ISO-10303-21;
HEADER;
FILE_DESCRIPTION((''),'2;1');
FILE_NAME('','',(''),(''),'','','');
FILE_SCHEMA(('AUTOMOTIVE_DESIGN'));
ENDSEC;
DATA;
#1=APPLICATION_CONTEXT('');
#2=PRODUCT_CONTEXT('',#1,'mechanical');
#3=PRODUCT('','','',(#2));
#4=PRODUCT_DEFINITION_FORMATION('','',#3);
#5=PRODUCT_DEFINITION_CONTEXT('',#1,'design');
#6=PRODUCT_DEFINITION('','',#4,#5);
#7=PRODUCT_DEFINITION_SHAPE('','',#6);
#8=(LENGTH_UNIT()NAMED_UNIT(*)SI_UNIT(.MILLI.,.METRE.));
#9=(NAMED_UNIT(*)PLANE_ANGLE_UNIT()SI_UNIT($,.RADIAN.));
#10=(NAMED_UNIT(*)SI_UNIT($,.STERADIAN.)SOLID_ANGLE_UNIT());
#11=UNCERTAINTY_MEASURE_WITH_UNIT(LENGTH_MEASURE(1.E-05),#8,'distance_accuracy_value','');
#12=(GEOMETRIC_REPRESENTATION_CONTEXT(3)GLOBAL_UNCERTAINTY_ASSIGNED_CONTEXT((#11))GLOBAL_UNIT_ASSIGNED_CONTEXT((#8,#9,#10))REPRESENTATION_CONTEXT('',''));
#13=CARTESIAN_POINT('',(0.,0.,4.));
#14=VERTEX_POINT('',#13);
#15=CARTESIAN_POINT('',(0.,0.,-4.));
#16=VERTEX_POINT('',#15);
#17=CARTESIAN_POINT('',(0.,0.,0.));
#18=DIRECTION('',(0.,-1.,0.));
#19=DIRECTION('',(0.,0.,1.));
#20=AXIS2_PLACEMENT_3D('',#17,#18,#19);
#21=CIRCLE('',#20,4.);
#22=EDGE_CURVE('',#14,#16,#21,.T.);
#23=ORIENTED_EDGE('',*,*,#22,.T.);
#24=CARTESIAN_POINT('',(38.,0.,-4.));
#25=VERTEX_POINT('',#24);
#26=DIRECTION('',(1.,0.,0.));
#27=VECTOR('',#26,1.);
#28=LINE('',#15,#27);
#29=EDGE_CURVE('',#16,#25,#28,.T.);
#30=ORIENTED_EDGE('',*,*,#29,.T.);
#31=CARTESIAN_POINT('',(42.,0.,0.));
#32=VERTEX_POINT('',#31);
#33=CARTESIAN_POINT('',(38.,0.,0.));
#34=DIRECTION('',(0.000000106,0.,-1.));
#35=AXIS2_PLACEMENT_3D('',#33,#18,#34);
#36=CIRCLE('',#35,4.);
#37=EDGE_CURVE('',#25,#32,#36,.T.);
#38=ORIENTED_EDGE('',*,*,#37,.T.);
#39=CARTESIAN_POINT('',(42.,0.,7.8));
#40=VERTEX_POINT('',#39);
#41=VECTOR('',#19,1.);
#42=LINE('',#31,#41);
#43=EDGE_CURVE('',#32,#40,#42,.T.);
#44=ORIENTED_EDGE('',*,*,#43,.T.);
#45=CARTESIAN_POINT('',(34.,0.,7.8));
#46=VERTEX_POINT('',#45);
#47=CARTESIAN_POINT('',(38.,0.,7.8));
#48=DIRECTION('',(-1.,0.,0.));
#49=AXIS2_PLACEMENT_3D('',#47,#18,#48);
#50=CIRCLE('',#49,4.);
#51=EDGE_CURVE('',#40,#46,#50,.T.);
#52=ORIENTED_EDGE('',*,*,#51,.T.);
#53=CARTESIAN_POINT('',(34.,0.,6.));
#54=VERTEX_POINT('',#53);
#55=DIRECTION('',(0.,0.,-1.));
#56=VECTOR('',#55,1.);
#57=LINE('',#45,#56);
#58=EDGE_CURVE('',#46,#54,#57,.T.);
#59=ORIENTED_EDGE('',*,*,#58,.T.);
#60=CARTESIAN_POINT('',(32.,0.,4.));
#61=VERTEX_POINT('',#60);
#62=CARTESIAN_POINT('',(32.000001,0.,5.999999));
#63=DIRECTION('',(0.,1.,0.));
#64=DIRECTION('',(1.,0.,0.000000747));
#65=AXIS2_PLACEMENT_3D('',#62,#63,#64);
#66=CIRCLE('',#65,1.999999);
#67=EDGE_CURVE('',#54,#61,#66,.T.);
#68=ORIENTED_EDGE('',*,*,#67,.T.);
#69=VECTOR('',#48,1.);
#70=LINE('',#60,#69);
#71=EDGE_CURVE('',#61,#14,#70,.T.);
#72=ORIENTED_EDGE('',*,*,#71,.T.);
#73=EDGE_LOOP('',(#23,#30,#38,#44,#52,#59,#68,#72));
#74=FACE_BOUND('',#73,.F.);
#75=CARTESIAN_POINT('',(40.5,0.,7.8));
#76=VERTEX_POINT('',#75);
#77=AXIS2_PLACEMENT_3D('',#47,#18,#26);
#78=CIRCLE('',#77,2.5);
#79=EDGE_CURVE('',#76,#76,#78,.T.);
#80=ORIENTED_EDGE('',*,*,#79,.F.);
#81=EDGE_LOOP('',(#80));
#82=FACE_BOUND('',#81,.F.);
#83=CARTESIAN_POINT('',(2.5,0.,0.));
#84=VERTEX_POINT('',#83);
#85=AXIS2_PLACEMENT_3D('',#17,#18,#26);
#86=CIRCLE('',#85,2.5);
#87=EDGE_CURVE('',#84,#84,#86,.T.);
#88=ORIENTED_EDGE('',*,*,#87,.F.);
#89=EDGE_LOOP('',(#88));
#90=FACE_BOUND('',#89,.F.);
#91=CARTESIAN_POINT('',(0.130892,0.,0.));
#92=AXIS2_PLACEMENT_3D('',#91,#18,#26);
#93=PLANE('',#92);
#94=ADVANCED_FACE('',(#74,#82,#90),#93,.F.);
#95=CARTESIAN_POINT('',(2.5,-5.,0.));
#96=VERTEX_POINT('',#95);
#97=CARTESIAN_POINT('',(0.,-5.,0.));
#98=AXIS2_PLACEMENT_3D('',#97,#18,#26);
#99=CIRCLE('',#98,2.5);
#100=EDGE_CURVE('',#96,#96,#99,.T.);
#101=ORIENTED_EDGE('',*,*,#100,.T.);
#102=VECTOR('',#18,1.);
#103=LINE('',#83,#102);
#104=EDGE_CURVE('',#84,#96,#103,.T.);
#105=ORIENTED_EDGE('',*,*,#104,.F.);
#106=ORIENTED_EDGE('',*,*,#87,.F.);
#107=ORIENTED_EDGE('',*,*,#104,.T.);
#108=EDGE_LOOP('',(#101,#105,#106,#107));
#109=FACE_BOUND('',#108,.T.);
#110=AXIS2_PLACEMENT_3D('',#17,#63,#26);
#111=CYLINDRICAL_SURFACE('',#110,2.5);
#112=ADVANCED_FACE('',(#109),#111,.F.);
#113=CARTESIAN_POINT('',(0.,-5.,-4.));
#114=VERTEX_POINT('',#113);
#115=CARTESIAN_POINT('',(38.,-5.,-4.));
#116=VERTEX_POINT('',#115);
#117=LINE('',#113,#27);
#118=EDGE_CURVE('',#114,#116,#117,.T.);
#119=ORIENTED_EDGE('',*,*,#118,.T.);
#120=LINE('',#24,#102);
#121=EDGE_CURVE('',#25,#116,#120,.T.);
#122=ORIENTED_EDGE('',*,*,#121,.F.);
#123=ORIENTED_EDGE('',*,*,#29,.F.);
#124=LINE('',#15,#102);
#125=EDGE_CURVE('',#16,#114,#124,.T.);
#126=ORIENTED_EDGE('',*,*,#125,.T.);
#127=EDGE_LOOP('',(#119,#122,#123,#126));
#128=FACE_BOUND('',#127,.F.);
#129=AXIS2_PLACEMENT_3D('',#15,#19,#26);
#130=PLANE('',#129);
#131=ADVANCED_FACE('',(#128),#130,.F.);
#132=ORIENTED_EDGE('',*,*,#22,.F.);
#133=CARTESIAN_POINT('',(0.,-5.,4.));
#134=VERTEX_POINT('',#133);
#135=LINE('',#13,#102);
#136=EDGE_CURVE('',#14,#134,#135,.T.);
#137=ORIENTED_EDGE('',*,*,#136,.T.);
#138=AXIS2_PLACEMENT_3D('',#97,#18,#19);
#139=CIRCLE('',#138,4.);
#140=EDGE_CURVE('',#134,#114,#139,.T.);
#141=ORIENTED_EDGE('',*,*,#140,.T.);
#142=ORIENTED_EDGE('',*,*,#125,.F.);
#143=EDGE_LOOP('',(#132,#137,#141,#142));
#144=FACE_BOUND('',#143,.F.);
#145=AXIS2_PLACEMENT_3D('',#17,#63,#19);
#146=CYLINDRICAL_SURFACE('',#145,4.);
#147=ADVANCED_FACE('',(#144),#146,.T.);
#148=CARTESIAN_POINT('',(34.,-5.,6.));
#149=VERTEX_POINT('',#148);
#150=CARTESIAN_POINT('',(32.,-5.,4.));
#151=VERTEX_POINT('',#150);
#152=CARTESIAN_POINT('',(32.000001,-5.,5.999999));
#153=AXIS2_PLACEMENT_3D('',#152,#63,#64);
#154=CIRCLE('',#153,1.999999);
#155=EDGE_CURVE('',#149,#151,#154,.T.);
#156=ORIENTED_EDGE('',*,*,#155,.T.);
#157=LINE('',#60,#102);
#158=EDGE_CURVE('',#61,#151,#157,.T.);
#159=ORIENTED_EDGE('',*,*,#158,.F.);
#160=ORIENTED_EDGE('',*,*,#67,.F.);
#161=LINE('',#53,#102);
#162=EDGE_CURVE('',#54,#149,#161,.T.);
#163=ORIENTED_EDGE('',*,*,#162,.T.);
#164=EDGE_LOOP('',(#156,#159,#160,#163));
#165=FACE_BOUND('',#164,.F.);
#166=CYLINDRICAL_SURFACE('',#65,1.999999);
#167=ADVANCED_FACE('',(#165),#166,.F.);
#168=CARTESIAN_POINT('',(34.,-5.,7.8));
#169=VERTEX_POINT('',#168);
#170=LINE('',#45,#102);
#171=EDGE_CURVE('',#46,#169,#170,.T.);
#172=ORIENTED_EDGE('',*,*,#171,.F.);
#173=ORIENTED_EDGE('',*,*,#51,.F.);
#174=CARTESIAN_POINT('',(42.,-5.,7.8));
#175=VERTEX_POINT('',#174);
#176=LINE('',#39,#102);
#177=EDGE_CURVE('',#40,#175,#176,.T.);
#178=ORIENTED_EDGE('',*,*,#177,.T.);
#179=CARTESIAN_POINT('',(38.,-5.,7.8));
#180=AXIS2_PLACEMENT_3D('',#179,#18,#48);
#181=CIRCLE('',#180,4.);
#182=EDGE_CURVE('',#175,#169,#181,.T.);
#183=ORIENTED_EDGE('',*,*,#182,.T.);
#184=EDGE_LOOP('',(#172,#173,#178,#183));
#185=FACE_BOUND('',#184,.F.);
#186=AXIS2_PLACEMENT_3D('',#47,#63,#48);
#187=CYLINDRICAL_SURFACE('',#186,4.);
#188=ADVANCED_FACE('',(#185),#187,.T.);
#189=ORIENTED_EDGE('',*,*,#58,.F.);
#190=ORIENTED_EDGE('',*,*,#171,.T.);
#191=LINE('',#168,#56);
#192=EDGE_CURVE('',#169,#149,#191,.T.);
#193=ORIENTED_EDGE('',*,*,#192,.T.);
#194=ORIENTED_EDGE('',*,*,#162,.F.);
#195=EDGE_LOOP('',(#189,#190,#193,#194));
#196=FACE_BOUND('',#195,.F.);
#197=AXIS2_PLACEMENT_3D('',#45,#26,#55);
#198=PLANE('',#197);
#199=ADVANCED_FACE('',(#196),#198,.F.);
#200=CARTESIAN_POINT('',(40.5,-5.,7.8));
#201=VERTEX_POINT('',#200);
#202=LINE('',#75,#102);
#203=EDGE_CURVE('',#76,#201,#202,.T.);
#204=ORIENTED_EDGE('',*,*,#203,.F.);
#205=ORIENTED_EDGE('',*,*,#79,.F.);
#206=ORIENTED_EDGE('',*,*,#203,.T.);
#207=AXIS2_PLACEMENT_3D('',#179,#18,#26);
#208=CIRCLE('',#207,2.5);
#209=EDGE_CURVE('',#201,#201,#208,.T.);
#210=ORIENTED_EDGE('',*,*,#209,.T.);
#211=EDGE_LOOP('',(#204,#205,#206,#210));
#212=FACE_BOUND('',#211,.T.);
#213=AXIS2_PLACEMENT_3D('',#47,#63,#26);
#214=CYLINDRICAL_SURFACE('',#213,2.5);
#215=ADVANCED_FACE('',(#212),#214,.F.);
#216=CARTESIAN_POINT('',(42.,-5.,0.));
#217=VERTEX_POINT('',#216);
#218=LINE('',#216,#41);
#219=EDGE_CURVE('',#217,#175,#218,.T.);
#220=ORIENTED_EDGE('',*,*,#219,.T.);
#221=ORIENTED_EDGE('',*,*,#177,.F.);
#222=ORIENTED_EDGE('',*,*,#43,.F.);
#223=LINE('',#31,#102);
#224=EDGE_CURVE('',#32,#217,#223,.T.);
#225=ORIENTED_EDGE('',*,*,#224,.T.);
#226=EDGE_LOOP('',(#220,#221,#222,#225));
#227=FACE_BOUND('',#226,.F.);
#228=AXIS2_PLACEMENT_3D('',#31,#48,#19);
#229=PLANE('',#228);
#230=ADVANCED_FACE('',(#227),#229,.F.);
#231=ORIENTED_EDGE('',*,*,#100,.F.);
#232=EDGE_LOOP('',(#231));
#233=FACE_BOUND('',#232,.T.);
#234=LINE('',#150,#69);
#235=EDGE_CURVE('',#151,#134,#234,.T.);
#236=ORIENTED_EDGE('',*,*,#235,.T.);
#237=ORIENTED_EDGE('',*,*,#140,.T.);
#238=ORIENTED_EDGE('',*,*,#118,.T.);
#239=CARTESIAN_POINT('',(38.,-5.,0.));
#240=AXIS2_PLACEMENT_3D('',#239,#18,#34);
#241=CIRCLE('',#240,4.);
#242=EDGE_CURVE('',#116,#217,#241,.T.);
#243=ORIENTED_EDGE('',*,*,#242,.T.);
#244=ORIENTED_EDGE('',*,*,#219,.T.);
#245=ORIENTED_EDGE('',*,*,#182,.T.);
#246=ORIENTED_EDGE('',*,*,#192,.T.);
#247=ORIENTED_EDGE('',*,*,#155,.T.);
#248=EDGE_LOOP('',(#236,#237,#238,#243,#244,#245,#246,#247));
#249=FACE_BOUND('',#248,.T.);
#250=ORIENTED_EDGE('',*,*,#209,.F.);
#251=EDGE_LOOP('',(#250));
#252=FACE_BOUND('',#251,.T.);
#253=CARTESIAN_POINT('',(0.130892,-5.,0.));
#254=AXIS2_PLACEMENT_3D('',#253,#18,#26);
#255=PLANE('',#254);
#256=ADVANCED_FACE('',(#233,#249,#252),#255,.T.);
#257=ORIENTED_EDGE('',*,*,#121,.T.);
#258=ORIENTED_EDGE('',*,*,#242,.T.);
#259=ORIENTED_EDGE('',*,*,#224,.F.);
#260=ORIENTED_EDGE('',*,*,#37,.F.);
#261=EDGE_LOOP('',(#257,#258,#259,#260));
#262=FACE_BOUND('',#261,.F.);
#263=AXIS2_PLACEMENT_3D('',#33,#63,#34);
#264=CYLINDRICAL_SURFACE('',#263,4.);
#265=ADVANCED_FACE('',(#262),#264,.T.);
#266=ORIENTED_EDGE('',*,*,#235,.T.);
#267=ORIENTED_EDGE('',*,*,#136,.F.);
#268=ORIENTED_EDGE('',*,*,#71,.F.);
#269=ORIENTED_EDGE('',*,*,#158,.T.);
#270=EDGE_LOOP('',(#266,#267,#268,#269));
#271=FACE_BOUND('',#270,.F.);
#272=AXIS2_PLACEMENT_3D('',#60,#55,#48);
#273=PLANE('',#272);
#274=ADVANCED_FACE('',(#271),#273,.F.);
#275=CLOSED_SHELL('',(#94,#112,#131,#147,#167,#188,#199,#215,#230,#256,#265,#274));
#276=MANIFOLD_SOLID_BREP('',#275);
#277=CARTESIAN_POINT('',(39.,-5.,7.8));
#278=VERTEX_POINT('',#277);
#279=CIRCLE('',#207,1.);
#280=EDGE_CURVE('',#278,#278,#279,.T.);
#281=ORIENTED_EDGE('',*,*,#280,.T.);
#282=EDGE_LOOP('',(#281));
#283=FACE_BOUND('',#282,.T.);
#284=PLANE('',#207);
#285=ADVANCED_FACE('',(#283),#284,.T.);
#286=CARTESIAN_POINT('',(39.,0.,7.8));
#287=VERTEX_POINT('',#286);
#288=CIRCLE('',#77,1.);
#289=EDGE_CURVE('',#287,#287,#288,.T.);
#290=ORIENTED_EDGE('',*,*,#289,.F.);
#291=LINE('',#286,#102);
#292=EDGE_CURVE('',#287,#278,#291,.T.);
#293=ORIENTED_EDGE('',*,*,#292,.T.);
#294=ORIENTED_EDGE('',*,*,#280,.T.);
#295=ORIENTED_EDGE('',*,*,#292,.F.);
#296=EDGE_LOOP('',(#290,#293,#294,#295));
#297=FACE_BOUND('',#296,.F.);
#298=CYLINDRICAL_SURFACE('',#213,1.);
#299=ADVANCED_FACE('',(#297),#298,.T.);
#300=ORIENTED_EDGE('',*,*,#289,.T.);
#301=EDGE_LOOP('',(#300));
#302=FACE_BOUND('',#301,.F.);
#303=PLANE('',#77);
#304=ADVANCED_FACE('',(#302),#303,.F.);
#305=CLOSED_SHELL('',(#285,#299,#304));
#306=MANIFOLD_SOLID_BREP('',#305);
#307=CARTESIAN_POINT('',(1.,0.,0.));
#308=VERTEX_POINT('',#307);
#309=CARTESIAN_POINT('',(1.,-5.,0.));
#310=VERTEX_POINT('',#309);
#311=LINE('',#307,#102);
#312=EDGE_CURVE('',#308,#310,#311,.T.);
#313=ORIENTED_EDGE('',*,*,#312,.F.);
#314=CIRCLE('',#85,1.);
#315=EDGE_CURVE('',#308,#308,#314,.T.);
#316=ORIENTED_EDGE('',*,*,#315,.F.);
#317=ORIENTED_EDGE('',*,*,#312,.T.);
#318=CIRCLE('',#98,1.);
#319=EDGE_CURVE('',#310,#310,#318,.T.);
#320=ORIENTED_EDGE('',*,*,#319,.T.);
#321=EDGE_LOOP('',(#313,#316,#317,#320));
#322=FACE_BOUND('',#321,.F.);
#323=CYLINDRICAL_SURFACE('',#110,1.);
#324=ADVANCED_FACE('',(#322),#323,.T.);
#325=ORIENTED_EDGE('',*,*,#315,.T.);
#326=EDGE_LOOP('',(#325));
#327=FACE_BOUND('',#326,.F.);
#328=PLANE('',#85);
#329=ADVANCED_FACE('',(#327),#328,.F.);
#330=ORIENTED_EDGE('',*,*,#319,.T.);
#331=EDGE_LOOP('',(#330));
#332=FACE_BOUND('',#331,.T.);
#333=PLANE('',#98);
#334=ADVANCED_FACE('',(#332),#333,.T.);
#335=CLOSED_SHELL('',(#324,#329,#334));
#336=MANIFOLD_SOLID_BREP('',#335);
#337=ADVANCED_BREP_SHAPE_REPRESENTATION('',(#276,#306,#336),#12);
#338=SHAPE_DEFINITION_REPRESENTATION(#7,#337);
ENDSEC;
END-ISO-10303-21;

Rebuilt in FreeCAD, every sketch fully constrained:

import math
import FreeCAD as App
import Part
import Sketcher
from FreeCAD import Vector
Q = App.Units.Quantity

doc = App.newDocument("Part")
body = doc.addObject("PartDesign::Body", "Body")
body.AllowCompound = True

# Sketch on XZ plane
sketch1 = body.newObject("Sketcher::SketchObject", "Sketch")
sketch1.AttachmentSupport = (doc.getObject("XZ_Plane"), [""])
sketch1.MapMode = "FlatFace"
sketch1.addGeometry([
    Part.ArcOfCircle(Part.Circle(Vector(0, 0, 0), Vector(0, 0, 1), 4), math.radians(90), math.radians(270)),  # 0
    Part.LineSegment(Vector(0, -4, 0), Vector(38, -4, 0)),  # 1
    Part.ArcOfCircle(Part.Circle(Vector(38, 0, 0), Vector(0, 0, 1), 4), math.radians(-90), math.radians(0)),  # 2
    Part.LineSegment(Vector(42, 0, 0), Vector(42, 7.8, 0)),  # 3
    Part.ArcOfCircle(Part.Circle(Vector(38, 7.8, 0), Vector(0, 0, 1), 4), math.radians(0), math.radians(180)),  # 4
    Part.LineSegment(Vector(34, 7.8, 0), Vector(34, 6, 0)),  # 5
    Part.ArcOfCircle(Part.Circle(Vector(32, 6, 0), Vector(0, 0, 1), 2), math.radians(-90), math.radians(0)),  # 6
    Part.LineSegment(Vector(32, 4, 0), Vector(0, 4, 0)),  # 7
    Part.Circle(Vector(0, 0, 0), Vector(0, 0, 1), 2.5),  # 8
    Part.Circle(Vector(38, 7.8, 0), Vector(0, 0, 1), 2.5),  # 9
    Part.Circle(Vector(0, 0, 0), Vector(0, 0, 1), 1),  # 10
    Part.Circle(Vector(38, 7.8, 0), Vector(0, 0, 1), 1),  # 11
], False)
sketch1.addConstraint([
    Sketcher.Constraint("Tangent", 0, 2, 1, 1),
    Sketcher.Constraint("Tangent", 1, 2, 2, 1),
    Sketcher.Constraint("Tangent", 2, 2, 3, 1),
    Sketcher.Constraint("Tangent", 3, 2, 4, 1),
    Sketcher.Constraint("Tangent", 4, 2, 5, 1),
    Sketcher.Constraint("Tangent", 5, 2, 6, 2),
    Sketcher.Constraint("Tangent", 6, 1, 7, 1),
    Sketcher.Constraint("Tangent", 7, 2, 0, 1),
    Sketcher.Constraint("Horizontal", 1),
    Sketcher.Constraint("Vertical", 3),
    Sketcher.Constraint("Vertical", 5),
    Sketcher.Constraint("Horizontal", 7),
    Sketcher.Constraint("Coincident", 0, 3, -1, 1),
    Sketcher.Constraint("Coincident", 8, 3, -1, 1),
    Sketcher.Constraint("Coincident", 10, 3, -1, 1),
    Sketcher.Constraint("Coincident", 9, 3, 4, 3),
    Sketcher.Constraint("Coincident", 11, 3, 4, 3),
    Sketcher.Constraint("Equal", 0, 2),
    Sketcher.Constraint("Equal", 2, 4),
    Sketcher.Constraint("Equal", 8, 9),
    Sketcher.Constraint("Equal", 10, 11),
    Sketcher.Constraint("Diameter", 8, Q("5 mm")),
    Sketcher.Constraint("Diameter", 10, Q("2 mm")),
    Sketcher.Constraint("Radius", 0, Q("4 mm")),
    Sketcher.Constraint("Radius", 6, Q("1.999999 mm")),
    Sketcher.Constraint("DistanceX", 1, 1, 1, 2, Q("38 mm")),
    Sketcher.Constraint("DistanceY", 3, 1, 3, 2, Q("7.8 mm")),
])
pad1 = body.newObject("PartDesign::Pad", "Pad")
pad1.Profile = sketch1
pad1.Length = 5

doc.recompute()
